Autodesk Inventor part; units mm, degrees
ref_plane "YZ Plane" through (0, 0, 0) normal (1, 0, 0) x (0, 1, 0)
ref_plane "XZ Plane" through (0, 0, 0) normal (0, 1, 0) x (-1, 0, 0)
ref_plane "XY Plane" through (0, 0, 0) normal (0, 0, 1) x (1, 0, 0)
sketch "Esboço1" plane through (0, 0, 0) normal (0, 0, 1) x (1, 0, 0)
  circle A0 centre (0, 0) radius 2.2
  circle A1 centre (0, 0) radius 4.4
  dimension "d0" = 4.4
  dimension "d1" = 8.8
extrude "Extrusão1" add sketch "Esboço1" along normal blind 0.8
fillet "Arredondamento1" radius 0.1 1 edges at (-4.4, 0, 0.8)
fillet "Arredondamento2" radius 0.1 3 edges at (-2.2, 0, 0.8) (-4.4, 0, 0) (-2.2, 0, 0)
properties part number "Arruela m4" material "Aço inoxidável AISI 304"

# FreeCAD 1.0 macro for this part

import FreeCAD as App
import Part
import Sketcher
from FreeCAD import Vector
Q = App.Units.Quantity


def edges_at(feature, points):
    """Names of the edges that pass closest to the given points."""
    edges = feature.Shape.Edges
    near = lambda p: min(range(len(edges)), key=lambda i: edges[i].distToShape(Part.Vertex(*p))[0])
    return sorted({f"Edge{near(p) + 1}" for p in points})

doc = App.newDocument("Part")
body = doc.addObject("PartDesign::Body", "Body")

# Sketch on XY plane
sketch1 = doc.addObject("Sketcher::SketchObject", "Sketch")
body.addObject(sketch1)
sketch1.AttachmentSupport = (doc.XY_Plane, [""])
sketch1.MapMode = "FlatFace"
sketch1.addGeometry([
    Part.Circle(Vector(0, 0, 0), Vector(0, 0, 1), 4.4),
    Part.Circle(Vector(0, 0, 0), Vector(0, 0, 1), 2.2),
], False)
sketch1.addConstraint([
    Sketcher.Constraint("Coincident", 0, 3, -1, 1),
    Sketcher.Constraint("Coincident", 1, 3, -1, 1),
    Sketcher.Constraint("Diameter", 0, Q("8.8 mm")),
    Sketcher.Constraint("Diameter", 1, Q("4.4 mm")),
])
pad1 = doc.addObject("PartDesign::Pad", "Pad")
body.addObject(pad1)
pad1.Profile = sketch1
pad1.Length = 0.8
doc.recompute()

fillet = doc.addObject("PartDesign::Fillet", "Fillet")
body.addObject(fillet)
fillet.Base = (pad1, edges_at(pad1, [(-4.4, 0, 0.8)]))
fillet.Radius = 0.1
doc.recompute()

fillet2 = doc.addObject("PartDesign::Fillet", "Fillet001")
body.addObject(fillet2)
fillet2.Base = (fillet, edges_at(fillet, [(-2.2, 0, 0.8), (-4.4, 0, 0), (-2.2, 0, 0)]))
fillet2.Radius = 0.1

doc.recompute()
